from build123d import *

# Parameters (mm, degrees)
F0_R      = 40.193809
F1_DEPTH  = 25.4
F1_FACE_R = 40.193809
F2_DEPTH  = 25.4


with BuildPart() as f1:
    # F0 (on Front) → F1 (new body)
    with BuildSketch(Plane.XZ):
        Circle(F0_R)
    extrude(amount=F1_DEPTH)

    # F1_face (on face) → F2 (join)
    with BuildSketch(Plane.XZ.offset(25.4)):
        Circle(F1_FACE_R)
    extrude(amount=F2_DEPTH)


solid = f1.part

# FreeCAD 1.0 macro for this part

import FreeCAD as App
import Part
import Sketcher

V = App.Vector
Q = App.Units.Quantity

doc = App.newDocument("Part")
body = doc.addObject("PartDesign::Body", "Body")

# Sketch on XZ plane
sketch1 = doc.addObject("Sketcher::SketchObject", "Sketch")
body.addObject(sketch1)
sketch1.AttachmentSupport = (doc.XZ_Plane, [""])
sketch1.MapMode = "FlatFace"
sketch1.addGeometry(Part.Circle(V(0, 0, 0), V(0, 0, 1), 40.193809), False)
sketch1.addConstraint(Sketcher.Constraint("Coincident", 0, 3, -1, 1))
sketch1.addConstraint(Sketcher.Constraint("Diameter", 0, Q("80.387618 mm")))
pad1 = doc.addObject("PartDesign::Pad", "Pad")
body.addObject(pad1)
pad1.Profile = sketch1
pad1.Length = Q("1 in")

# Sketch on XZ plane
sketch2 = doc.addObject("Sketcher::SketchObject", "Sketch001")
body.addObject(sketch2)
sketch2.AttachmentSupport = (doc.XZ_Plane, [""])
sketch2.MapMode = "FlatFace"
sketch2.AttachmentOffset = App.Placement(V(0, 0, 1 * 25.4), App.Rotation())
sketch2.addGeometry(Part.Circle(V(0, 0, 0), V(0, 0, 1), 40.193809), False)
sketch2.addConstraint(Sketcher.Constraint("Coincident", 0, 3, -1, 1))
sketch2.addConstraint(Sketcher.Constraint("Diameter", 0, Q("80.387618 mm")))
pad2 = doc.addObject("PartDesign::Pad", "Pad001")
body.addObject(pad2)
pad2.Profile = sketch2
pad2.Length = Q("1 in")

doc.recompute()
